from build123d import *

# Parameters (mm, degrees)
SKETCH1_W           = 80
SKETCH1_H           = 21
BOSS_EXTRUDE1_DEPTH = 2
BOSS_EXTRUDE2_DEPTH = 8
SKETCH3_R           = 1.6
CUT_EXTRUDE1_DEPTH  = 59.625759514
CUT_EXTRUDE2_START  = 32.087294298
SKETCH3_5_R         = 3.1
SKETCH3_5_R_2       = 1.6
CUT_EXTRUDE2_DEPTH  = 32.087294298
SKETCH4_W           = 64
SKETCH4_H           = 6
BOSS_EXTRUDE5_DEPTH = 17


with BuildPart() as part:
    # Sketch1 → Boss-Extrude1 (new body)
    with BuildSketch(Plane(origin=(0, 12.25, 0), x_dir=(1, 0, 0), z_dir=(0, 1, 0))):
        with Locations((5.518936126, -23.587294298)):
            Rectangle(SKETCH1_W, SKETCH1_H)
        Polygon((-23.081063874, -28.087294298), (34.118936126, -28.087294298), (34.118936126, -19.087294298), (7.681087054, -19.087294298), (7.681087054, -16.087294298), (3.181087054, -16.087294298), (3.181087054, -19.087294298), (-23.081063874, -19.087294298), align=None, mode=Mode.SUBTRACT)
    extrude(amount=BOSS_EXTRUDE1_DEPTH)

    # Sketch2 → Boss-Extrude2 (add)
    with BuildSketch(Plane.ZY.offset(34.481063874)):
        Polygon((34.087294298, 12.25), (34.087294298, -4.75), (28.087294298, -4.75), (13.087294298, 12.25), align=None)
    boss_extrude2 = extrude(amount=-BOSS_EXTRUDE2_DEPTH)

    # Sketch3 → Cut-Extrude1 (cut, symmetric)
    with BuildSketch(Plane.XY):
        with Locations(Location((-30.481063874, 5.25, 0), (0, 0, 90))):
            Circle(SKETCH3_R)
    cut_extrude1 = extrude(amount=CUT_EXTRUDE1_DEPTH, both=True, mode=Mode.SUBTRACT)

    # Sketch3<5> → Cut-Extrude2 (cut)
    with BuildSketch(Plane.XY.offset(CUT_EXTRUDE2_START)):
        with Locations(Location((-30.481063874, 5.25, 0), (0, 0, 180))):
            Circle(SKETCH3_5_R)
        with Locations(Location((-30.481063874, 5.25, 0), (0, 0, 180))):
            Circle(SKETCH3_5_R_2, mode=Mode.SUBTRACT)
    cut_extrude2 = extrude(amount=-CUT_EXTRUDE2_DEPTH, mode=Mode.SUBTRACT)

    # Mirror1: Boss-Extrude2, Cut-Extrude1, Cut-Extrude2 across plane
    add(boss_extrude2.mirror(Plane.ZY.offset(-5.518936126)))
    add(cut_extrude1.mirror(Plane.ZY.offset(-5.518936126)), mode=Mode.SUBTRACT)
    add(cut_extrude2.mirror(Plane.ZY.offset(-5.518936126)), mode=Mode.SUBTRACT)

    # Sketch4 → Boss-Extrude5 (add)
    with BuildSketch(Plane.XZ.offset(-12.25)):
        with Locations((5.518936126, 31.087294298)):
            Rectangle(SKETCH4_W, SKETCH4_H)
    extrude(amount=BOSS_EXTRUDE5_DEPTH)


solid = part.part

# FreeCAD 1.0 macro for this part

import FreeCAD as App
import Part
import Sketcher

V = App.Vector
Q = App.Units.Quantity


def add_polygon(sketch, points):
    """Adds a closed chain of lines whose ends are joined by coincident constraints."""
    first, n = sketch.GeometryCount, len(points)
    for a, b in zip(points, points[1:] + points[:1]):
        sketch.addGeometry(Part.LineSegment(App.Vector(*a, 0), App.Vector(*b, 0)), False)
    for i in range(n):
        sketch.addConstraint(Sketcher.Constraint("Coincident", first + i, 2, first + (i + 1) % n, 1))

doc = App.newDocument("Part")
body = doc.addObject("PartDesign::Body", "Body")

sketch1 = doc.addObject("Sketcher::SketchObject", "Sketch")
body.addObject(sketch1)
sketch1.AttachmentSupport = (doc.XZ_Plane, [""])
sketch1.MapMode = "FlatFace"
sketch1.AttachmentOffset = App.Placement(V(0, 0, -12.25), App.Rotation())
add_polygon(sketch1, [(-34.5, 13.1), (-34.5, 34.1), (45.5, 34.1), (45.5, 13.1)])
add_polygon(sketch1, [(34.1, 28.1), (-23.1, 28.1), (-23.1, 19.1), (3.2, 19.1), (3.2, 16.1), (7.7, 16.1), (7.7, 19.1), (34.1, 19.1)])
sketch1.addConstraint([
    Sketcher.Constraint("Vertical", 0),
    Sketcher.Constraint("Horizontal", 1),
    Sketcher.Constraint("Vertical", 2),
    Sketcher.Constraint("Horizontal", 3),
    Sketcher.Constraint("Horizontal", 4),
    Sketcher.Constraint("Vertical", 5),
    Sketcher.Constraint("Horizontal", 6),
    Sketcher.Constraint("Vertical", 7),
    Sketcher.Constraint("Horizontal", 8),
    Sketcher.Constraint("Vertical", 9),
    Sketcher.Constraint("Horizontal", 10),
    Sketcher.Constraint("Vertical", 11),
    Sketcher.Constraint("Horizontal", 6, 2, 9, 2),
    Sketcher.Constraint("DistanceX", 1, 1, 1, 2, Q("80 mm")),
    Sketcher.Constraint("DistanceY", 0, 1, 0, 2, Q("21 mm")),
    Sketcher.Constraint("DistanceY", 5, 2, 5, 1, Q("9 mm")),
    Sketcher.Constraint("DistanceY", 7, 2, 7, 1, Q("3 mm")),
    Sketcher.Constraint("DistanceX", 4, 2, 4, 1, Q("57.2 mm")),
    Sketcher.Constraint("DistanceX", 8, 1, 8, 2, Q("4.5 mm")),
    Sketcher.Constraint("DistanceY", 4, 2, 0, 2, Q("6 mm")),
    Sketcher.Constraint("DistanceX", 0, 2, 4, 2, Q("11.4 mm")),
    Sketcher.Constraint("DistanceX", 6, 1, 6, 2, Q("26.262151 mm")),
    Sketcher.Constraint("DistanceX", 0, 2, -1, 1, Q("34.481064 mm")),
    Sketcher.Constraint("DistanceY", -1, 1, 0, 2, Q("34.087294 mm")),
])
pad1 = doc.addObject("PartDesign::Pad", "Pad")
body.addObject(pad1)
pad1.Profile = sketch1
pad1.Length = 2
pad1.Reversed = True

sketch2 = doc.addObject("Sketcher::SketchObject", "Sketch001")
body.addObject(sketch2)
sketch2.AttachmentSupport = (doc.YZ_Plane, [""])
sketch2.MapMode = "FlatFace"
sketch2.AttachmentOffset = App.Placement(V(0, 0, -34.481064), App.Rotation())
add_polygon(sketch2, [(-5, 34), (12, 34), (12, 13), (-5, 28)])
sketch2.addConstraint([
    Sketcher.Constraint("Horizontal", 0),
    Sketcher.Constraint("Vertical", 1),
    Sketcher.Constraint("Vertical", 3),
    Sketcher.Constraint("DistanceX", 0, 1, 0, 2, Q("17 mm")),
    Sketcher.Constraint("DistanceY", 1, 2, 1, 1, Q("21 mm")),
    Sketcher.Constraint("DistanceY", 3, 1, 3, 2, Q("6 mm")),
    Sketcher.Constraint("DistanceX", -1, 1, 0, 2, Q("12.25 mm")),
    Sketcher.Constraint("DistanceY", -1, 1, 0, 2, Q("34.087294 mm")),
])
pad2 = doc.addObject("PartDesign::Pad", "Pad001")
body.addObject(pad2)
pad2.Profile = sketch2
pad2.Length = 8

sketch3 = doc.addObject("Sketcher::SketchObject", "Sketch002")
body.addObject(sketch3)
sketch3.AttachmentSupport = (doc.XY_Plane, [""])
sketch3.MapMode = "FlatFace"
sketch3.addGeometry(Part.Circle(V(-30.5, 5.2, 0), V(0, 0, 1), 1.6), False)
sketch3.addConstraint([
    Sketcher.Constraint("Diameter", 0, Q("3.2 mm")),
    Sketcher.Constraint("DistanceY", -1, 1, 0, 3, Q("5.25 mm")),
    Sketcher.Constraint("DistanceX", 0, 3, -1, 1, Q("30.481064 mm")),
])
pocket1 = doc.addObject("PartDesign::Pocket", "Pocket")
body.addObject(pocket1)
pocket1.Profile = sketch3
pocket1.Length = 119.251519
pocket1.Midplane = True

sketch4 = doc.addObject("Sketcher::SketchObject", "Sketch003")
body.addObject(sketch4)
sketch4.AttachmentSupport = (doc.XY_Plane, [""])
sketch4.MapMode = "FlatFace"
sketch4.AttachmentOffset = App.Placement(V(0, 0, 32.087294), App.Rotation())
sketch4.addGeometry([
    Part.Circle(V(-30.5, 5.2, 0), V(0, 0, 1), 3.1),
    Part.Circle(V(-30.5, 5.2, 0), V(0, 0, 1), 1.6),
], False)
sketch4.addConstraint([
    Sketcher.Constraint("Coincident", 1, 3, 0, 3),
    Sketcher.Constraint("Diameter", 0, Q("6.2 mm")),
    Sketcher.Constraint("Diameter", 1, Q("3.2 mm")),
    Sketcher.Constraint("DistanceY", -1, 1, 0, 3, Q("5.25 mm")),
    Sketcher.Constraint("DistanceX", 0, 3, -1, 1, Q("30.481064 mm")),
])
pocket2 = doc.addObject("PartDesign::Pocket", "Pocket001")
body.addObject(pocket2)
pocket2.Profile = sketch4
pocket2.Length = 32.087294
doc.recompute()

datumplane = doc.addObject("PartDesign::Plane", "DatumPlane")
body.addObject(datumplane)
datumplane.AttachmentSupport = (doc.YZ_Plane, [""])
datumplane.MapMode = "FlatFace"
datumplane.AttachmentOffset = App.Placement(V(0, 0, 5.518936), App.Rotation())
mirrored = doc.addObject("PartDesign::Mirrored", "Mirrored")
body.addObject(mirrored)
mirrored.Originals = [pad2, pocket1, pocket2]
mirrored.MirrorPlane = (datumplane, [""])
body.Tip = mirrored

sketch5 = doc.addObject("Sketcher::SketchObject", "Sketch004")
body.addObject(sketch5)
sketch5.AttachmentSupport = (doc.XZ_Plane, [""])
sketch5.MapMode = "FlatFace"
sketch5.AttachmentOffset = App.Placement(V(0, 0, -12.25), App.Rotation())
add_polygon(sketch5, [(-26, 34), (-26, 28), (38, 28), (38, 34)])
sketch5.addConstraint([
    Sketcher.Constraint("Vertical", 0),
    Sketcher.Constraint("Horizontal", 1),
    Sketcher.Constraint("Vertical", 2),
    Sketcher.Constraint("Horizontal", 3),
    Sketcher.Constraint("DistanceX", 1, 1, 1, 2, Q("64 mm")),
    Sketcher.Constraint("DistanceY", 0, 2, 0, 1, Q("6 mm")),
    Sketcher.Constraint("DistanceX", 0, 2, -1, 1, Q("26.481064 mm")),
    Sketcher.Constraint("DistanceY", -1, 1, 0, 2, Q("28.087294 mm")),
])
pad3 = doc.addObject("PartDesign::Pad", "Pad002")
body.addObject(pad3)
pad3.Profile = sketch5
pad3.Length = 17

doc.recompute()
